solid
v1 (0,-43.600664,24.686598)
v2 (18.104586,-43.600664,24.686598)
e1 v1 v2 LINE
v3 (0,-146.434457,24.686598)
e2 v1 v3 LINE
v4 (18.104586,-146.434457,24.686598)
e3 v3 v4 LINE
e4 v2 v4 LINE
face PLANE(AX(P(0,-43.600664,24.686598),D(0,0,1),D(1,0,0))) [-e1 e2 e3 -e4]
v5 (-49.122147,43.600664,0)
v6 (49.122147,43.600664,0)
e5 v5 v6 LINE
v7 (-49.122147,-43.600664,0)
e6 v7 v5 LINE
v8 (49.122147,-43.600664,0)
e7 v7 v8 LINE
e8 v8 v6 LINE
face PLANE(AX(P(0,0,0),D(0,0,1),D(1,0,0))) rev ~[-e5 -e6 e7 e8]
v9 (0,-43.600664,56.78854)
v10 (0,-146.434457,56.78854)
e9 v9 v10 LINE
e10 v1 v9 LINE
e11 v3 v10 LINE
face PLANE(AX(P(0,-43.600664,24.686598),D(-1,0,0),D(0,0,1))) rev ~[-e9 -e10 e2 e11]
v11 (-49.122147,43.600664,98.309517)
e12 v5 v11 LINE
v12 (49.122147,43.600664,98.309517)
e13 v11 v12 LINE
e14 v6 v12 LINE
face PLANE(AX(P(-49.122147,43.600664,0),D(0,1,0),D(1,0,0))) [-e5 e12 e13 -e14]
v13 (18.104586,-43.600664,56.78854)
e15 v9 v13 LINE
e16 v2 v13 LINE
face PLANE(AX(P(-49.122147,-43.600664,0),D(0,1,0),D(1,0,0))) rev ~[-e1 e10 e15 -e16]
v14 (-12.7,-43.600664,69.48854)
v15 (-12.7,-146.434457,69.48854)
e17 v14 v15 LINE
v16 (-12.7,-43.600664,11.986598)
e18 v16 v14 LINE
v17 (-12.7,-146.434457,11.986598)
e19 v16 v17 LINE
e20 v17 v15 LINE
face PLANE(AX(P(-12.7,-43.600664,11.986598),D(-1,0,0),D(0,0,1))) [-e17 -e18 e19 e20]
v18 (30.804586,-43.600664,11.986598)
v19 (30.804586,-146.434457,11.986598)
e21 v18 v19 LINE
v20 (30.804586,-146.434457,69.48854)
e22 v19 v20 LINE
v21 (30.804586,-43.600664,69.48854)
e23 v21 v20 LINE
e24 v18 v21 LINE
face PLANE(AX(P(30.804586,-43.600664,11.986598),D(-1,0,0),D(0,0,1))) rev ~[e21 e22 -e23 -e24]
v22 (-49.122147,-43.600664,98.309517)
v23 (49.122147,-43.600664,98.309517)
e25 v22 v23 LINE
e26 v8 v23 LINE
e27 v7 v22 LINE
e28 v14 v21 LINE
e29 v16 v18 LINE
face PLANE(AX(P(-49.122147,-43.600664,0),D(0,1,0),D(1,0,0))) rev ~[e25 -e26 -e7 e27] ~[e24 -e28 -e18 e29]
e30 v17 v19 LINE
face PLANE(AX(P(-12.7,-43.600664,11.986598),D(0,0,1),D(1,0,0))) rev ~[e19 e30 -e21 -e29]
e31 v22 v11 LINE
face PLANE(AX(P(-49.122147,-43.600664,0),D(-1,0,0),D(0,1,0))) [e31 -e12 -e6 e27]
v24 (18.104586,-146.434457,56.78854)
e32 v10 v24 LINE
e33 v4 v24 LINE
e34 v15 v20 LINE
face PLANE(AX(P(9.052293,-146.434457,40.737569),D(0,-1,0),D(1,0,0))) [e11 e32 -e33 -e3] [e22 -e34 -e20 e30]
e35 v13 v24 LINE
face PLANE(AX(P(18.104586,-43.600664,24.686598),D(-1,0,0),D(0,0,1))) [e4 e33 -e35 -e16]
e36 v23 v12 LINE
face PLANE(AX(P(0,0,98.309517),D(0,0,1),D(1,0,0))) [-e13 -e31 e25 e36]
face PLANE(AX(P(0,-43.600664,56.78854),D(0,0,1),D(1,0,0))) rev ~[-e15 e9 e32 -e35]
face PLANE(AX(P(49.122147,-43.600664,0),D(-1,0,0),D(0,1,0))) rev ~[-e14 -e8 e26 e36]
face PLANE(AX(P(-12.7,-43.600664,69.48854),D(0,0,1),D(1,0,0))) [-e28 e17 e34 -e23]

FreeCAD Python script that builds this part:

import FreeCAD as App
import Part
import Sketcher

V = App.Vector
Q = App.Units.Quantity

doc = App.newDocument("Part")
body = doc.addObject("PartDesign::Body", "Body")

# Sketch on XY plane
sketch1 = body.newObject("Sketcher::SketchObject", "Sketch")
sketch1.AttachmentSupport = (doc.getObject("XY_Plane"), [""])
sketch1.MapMode = "FlatFace"
sketch1.addGeometry(Part.LineSegment(V(-49.122147, 43.600664, 0), V(-49.122147, -43.600664, 0)), False)
sketch1.addGeometry(Part.LineSegment(V(-49.122147, -43.600664, 0), V(49.122147, -43.600664, 0)), False)
sketch1.addGeometry(Part.LineSegment(V(49.122147, -43.600664, 0), V(49.122147, 43.600664, 0)), False)
sketch1.addGeometry(Part.LineSegment(V(49.122147, 43.600664, 0), V(-49.122147, 43.600664, 0)), False)
sketch1.addConstraint(Sketcher.Constraint("Coincident", 0, 2, 1, 1))
sketch1.addConstraint(Sketcher.Constraint("Coincident", 1, 2, 2, 1))
sketch1.addConstraint(Sketcher.Constraint("Coincident", 2, 2, 3, 1))
sketch1.addConstraint(Sketcher.Constraint("Coincident", 3, 2, 0, 1))
sketch1.addConstraint(Sketcher.Constraint("Vertical", 0))
sketch1.addConstraint(Sketcher.Constraint("Horizontal", 1))
sketch1.addConstraint(Sketcher.Constraint("Vertical", 2))
sketch1.addConstraint(Sketcher.Constraint("Horizontal", 3))
sketch1.addConstraint(Sketcher.Constraint("Symmetric", 0, 2, 2, 2, -1, 1))
sketch1.addConstraint(Sketcher.Constraint("DistanceY", 0, 2, 0, 1, Q("87.201328 mm")))
sketch1.addConstraint(Sketcher.Constraint("DistanceX", 1, 1, 1, 2, Q("98.244294 mm")))
pad1 = body.newObject("PartDesign::Pad", "Pad")
pad1.Profile = sketch1
pad1.Length = 98.309517

# Sketch on XZ plane
sketch2 = body.newObject("Sketcher::SketchObject", "Sketch001")
sketch2.AttachmentSupport = (doc.getObject("XZ_Plane"), [""])
sketch2.MapMode = "FlatFace"
sketch2.AttachmentOffset = App.Placement(V(0, 0, 43.600664), App.Rotation())
sketch2.addGeometry(Part.LineSegment(V(-12.7, 69.48854, 0), V(-12.7, 11.986598, 0)), False)
sketch2.addGeometry(Part.LineSegment(V(-12.7, 11.986598, 0), V(30.804586, 11.986598, 0)), False)
sketch2.addGeometry(Part.LineSegment(V(30.804586, 11.986598, 0), V(30.804586, 69.48854, 0)), False)
sketch2.addGeometry(Part.LineSegment(V(30.804586, 69.48854, 0), V(-12.7, 69.48854, 0)), False)
sketch2.addGeometry(Part.LineSegment(V(18.104586, 24.686598, 0), V(0, 24.686598, 0)), False)
sketch2.addGeometry(Part.LineSegment(V(0, 24.686598, 0), V(0, 56.78854, 0)), False)
sketch2.addGeometry(Part.LineSegment(V(0, 56.78854, 0), V(18.104586, 56.78854, 0)), False)
sketch2.addGeometry(Part.LineSegment(V(18.104586, 56.78854, 0), V(18.104586, 24.686598, 0)), False)
sketch2.addConstraint(Sketcher.Constraint("Coincident", 0, 2, 1, 1))
sketch2.addConstraint(Sketcher.Constraint("Coincident", 1, 2, 2, 1))
sketch2.addConstraint(Sketcher.Constraint("Coincident", 2, 2, 3, 1))
sketch2.addConstraint(Sketcher.Constraint("Coincident", 3, 2, 0, 1))
sketch2.addConstraint(Sketcher.Constraint("Coincident", 4, 2, 5, 1))
sketch2.addConstraint(Sketcher.Constraint("Coincident", 5, 2, 6, 1))
sketch2.addConstraint(Sketcher.Constraint("Coincident", 6, 2, 7, 1))
sketch2.addConstraint(Sketcher.Constraint("Coincident", 7, 2, 4, 1))
sketch2.addConstraint(Sketcher.Constraint("Vertical", 0))
sketch2.addConstraint(Sketcher.Constraint("Horizontal", 1))
sketch2.addConstraint(Sketcher.Constraint("Vertical", 2))
sketch2.addConstraint(Sketcher.Constraint("Horizontal", 3))
sketch2.addConstraint(Sketcher.Constraint("Horizontal", 4))
sketch2.addConstraint(Sketcher.Constraint("Vertical", 5))
sketch2.addConstraint(Sketcher.Constraint("Horizontal", 6))
sketch2.addConstraint(Sketcher.Constraint("Vertical", 7))
sketch2.addConstraint(Sketcher.Constraint("PointOnObject", 4, 2, -2))
sketch2.addConstraint(Sketcher.Constraint("DistanceX", 0, 2, -1, 1, Q("12.7 mm")))
sketch2.addConstraint(Sketcher.Constraint("DistanceY", 0, 2, 4, 2, Q("12.7 mm")))
sketch2.addConstraint(Sketcher.Constraint("DistanceY", 5, 2, 3, 2, Q("12.7 mm")))
sketch2.addConstraint(Sketcher.Constraint("DistanceX", 6, 2, 2, 2, Q("12.7 mm")))
sketch2.addConstraint(Sketcher.Constraint("DistanceY", 5, 1, 5, 2, Q("32.101942 mm")))
sketch2.addConstraint(Sketcher.Constraint("DistanceY", -1, 1, 0, 2, Q("11.986598 mm")))
sketch2.addConstraint(Sketcher.Constraint("DistanceX", 1, 1, 1, 2, Q("43.504586 mm")))
pad2 = body.newObject("PartDesign::Pad", "Pad001")
pad2.Profile = sketch2
pad2.Length = 102.833793

doc.recompute()
